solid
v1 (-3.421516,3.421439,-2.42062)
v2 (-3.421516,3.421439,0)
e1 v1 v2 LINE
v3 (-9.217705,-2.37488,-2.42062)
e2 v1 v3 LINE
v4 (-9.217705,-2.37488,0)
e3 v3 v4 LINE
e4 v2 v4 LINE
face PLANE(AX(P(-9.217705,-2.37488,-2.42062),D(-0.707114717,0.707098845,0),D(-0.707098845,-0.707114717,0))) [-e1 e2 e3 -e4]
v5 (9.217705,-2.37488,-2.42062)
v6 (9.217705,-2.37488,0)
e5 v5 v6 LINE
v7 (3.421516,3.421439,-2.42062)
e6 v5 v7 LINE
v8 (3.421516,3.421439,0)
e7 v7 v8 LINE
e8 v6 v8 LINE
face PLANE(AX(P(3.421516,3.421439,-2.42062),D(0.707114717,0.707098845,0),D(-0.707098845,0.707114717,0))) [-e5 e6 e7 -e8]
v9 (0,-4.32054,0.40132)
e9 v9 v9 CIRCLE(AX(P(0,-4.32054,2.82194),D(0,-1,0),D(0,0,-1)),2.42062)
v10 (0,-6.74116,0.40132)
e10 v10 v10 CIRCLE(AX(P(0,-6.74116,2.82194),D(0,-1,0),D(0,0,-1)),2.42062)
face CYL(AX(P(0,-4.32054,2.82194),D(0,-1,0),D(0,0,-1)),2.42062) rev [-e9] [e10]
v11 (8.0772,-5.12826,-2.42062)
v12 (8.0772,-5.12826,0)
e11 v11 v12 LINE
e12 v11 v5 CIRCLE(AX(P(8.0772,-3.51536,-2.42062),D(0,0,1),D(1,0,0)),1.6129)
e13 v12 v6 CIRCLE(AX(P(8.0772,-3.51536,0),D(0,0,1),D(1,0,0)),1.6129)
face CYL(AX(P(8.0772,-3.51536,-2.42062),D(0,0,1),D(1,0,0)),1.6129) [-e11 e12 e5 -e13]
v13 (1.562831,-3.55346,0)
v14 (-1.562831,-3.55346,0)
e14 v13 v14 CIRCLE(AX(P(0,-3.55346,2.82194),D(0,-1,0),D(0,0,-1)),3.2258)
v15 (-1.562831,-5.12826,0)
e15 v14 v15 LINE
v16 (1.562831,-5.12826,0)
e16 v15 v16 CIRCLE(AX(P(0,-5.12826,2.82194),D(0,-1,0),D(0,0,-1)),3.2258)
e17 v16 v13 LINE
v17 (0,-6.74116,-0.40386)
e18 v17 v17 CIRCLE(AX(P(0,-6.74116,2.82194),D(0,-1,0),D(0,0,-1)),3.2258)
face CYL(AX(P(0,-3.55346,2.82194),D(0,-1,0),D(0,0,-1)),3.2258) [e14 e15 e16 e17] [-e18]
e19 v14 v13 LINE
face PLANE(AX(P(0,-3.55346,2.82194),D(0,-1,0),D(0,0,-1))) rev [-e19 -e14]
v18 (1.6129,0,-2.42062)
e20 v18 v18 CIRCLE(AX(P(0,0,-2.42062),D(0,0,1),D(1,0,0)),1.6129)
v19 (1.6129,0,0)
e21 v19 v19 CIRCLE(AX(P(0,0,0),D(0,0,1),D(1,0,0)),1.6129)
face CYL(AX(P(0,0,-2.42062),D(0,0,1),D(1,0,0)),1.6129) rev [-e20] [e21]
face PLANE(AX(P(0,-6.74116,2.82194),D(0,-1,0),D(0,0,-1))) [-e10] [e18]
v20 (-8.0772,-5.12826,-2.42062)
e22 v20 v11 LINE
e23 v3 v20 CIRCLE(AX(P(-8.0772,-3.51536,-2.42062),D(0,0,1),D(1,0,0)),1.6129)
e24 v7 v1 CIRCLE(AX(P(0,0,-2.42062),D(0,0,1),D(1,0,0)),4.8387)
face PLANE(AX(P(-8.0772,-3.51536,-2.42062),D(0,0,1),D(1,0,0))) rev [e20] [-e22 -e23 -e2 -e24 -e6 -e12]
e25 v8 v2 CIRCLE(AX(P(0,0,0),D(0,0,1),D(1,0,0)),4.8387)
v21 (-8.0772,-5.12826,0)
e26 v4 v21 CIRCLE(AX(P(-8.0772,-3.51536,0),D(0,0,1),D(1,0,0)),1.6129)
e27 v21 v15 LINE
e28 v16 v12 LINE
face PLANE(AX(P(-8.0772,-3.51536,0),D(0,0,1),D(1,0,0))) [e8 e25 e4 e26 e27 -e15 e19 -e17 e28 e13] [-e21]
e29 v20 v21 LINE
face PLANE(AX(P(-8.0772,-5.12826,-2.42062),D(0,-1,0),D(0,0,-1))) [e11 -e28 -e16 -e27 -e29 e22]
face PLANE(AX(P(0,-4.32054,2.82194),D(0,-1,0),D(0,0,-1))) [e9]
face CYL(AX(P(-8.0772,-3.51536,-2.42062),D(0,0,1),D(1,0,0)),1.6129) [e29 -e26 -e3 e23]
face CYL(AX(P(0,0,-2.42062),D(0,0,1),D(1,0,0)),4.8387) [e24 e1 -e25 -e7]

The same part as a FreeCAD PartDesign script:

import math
import FreeCAD as App
import Part
import Sketcher
from FreeCAD import Vector
Q = App.Units.Quantity

doc = App.newDocument("Part")
body = doc.addObject("PartDesign::Body", "Body")

# Sketch on XY plane
sketch1 = doc.addObject("Sketcher::SketchObject", "Sketch")
body.addObject(sketch1)
sketch1.AttachmentSupport = (doc.XY_Plane, [""])
sketch1.MapMode = "FlatFace"
sketch1.addGeometry([
    Part.LineSegment(Vector(-8.0772, -5.12826, 0), Vector(8.0772, -5.12826, 0)),  # 0
    Part.ArcOfCircle(Part.Circle(Vector(8.0772, -3.51536, 0), Vector(0, 0, 1), 1.6129), math.radians(-90), math.radians(44.999357)),  # 1
    Part.LineSegment(Vector(9.217705, -2.37488, 0), Vector(3.421516, 3.421439, 0)),  # 2
    Part.ArcOfCircle(Part.Circle(Vector(0, 0, 0), Vector(0, 0, 1), 4.8387), math.radians(44.999357), math.radians(135.000643)),  # 3
    Part.LineSegment(Vector(-3.421516, 3.421439, 0), Vector(-9.217705, -2.37488, 0)),  # 4
    Part.ArcOfCircle(Part.Circle(Vector(-8.0772, -3.51536, 0), Vector(0, 0, 1), 1.6129), math.radians(135.000643), math.radians(270)),  # 5
    Part.Circle(Vector(0, 0, 0), Vector(0, 0, 1), 1.6129),  # 6
], False)
sketch1.addConstraint([
    Sketcher.Constraint("Tangent", 0, 2, 1, 1),
    Sketcher.Constraint("Tangent", 1, 2, 2, 1),
    Sketcher.Constraint("Tangent", 2, 2, 3, 1),
    Sketcher.Constraint("Tangent", 3, 2, 4, 1),
    Sketcher.Constraint("Tangent", 4, 2, 5, 1),
    Sketcher.Constraint("Tangent", 5, 2, 0, 1),
    Sketcher.Constraint("Horizontal", 0),
    Sketcher.Constraint("Coincident", 3, 3, -1, 1),
    Sketcher.Constraint("Coincident", 6, 3, -1, 1),
    Sketcher.Constraint("Equal", 1, 5),
    Sketcher.Constraint("Equal", 5, 6),
    Sketcher.Constraint("Horizontal", 2, 2, 3, 2),
    Sketcher.Constraint("Diameter", 6, Q("0.127 in")),
    Sketcher.Constraint("Radius", 3, Q("0.1905 in")),
    Sketcher.Constraint("DistanceX", 0, 1, 0, 2, Q("0.636 in")),
    Sketcher.Constraint("DistanceY", 1, 3, -1, 1, Q("0.1384 in")),
])
pad1 = doc.addObject("PartDesign::Pad", "Pad")
body.addObject(pad1)
pad1.Profile = sketch1
pad1.Length = Q("0.0953 in")
pad1.Reversed = True

# Sketch on XZ plane
sketch2 = doc.addObject("Sketcher::SketchObject", "Sketch001")
body.addObject(sketch2)
sketch2.AttachmentSupport = (doc.XZ_Plane, [""])
sketch2.MapMode = "FlatFace"
sketch2.AttachmentOffset = App.Placement(Vector(0, 0, 0.2019 * 25.4), App.Rotation())
sketch2.addGeometry(Part.Circle(Vector(0, 2.82194, 0), Vector(0, 0, 1), 3.2258), False)
sketch2.addConstraint([
    Sketcher.Constraint("PointOnObject", 0, 3, -2),
    Sketcher.Constraint("Diameter", 0, Q("0.254 in")),
    Sketcher.Constraint("DistanceY", -1, 1, 0, 3, Q("0.1111 in")),
])
pad2 = doc.addObject("PartDesign::Pad", "Pad001")
body.addObject(pad2)
pad2.Profile = sketch2
pad2.Type = "TwoLengths"
pad2.Length = Q("0.0635 in")
pad2.Length2 = Q("0.062 in")

# Sketch on XZ plane
sketch3 = doc.addObject("Sketcher::SketchObject", "Sketch002")
body.addObject(sketch3)
sketch3.AttachmentSupport = (doc.XZ_Plane, [""])
sketch3.MapMode = "FlatFace"
sketch3.AttachmentOffset = App.Placement(Vector(0, 0, 0.2654 * 25.4), App.Rotation())
sketch3.addGeometry(Part.Circle(Vector(0, 2.82194, 0), Vector(0, 0, 1), 2.42062), False)
sketch3.addConstraint([
    Sketcher.Constraint("PointOnObject", 0, 3, -2),
    Sketcher.Constraint("Diameter", 0, Q("0.1906 in")),
    Sketcher.Constraint("DistanceY", -1, 1, 0, 3, Q("0.1111 in")),
])
pocket1 = doc.addObject("PartDesign::Pocket", "Pocket")
body.addObject(pocket1)
pocket1.Profile = sketch3
pocket1.Length = Q("0.0953 in")

doc.recompute()
